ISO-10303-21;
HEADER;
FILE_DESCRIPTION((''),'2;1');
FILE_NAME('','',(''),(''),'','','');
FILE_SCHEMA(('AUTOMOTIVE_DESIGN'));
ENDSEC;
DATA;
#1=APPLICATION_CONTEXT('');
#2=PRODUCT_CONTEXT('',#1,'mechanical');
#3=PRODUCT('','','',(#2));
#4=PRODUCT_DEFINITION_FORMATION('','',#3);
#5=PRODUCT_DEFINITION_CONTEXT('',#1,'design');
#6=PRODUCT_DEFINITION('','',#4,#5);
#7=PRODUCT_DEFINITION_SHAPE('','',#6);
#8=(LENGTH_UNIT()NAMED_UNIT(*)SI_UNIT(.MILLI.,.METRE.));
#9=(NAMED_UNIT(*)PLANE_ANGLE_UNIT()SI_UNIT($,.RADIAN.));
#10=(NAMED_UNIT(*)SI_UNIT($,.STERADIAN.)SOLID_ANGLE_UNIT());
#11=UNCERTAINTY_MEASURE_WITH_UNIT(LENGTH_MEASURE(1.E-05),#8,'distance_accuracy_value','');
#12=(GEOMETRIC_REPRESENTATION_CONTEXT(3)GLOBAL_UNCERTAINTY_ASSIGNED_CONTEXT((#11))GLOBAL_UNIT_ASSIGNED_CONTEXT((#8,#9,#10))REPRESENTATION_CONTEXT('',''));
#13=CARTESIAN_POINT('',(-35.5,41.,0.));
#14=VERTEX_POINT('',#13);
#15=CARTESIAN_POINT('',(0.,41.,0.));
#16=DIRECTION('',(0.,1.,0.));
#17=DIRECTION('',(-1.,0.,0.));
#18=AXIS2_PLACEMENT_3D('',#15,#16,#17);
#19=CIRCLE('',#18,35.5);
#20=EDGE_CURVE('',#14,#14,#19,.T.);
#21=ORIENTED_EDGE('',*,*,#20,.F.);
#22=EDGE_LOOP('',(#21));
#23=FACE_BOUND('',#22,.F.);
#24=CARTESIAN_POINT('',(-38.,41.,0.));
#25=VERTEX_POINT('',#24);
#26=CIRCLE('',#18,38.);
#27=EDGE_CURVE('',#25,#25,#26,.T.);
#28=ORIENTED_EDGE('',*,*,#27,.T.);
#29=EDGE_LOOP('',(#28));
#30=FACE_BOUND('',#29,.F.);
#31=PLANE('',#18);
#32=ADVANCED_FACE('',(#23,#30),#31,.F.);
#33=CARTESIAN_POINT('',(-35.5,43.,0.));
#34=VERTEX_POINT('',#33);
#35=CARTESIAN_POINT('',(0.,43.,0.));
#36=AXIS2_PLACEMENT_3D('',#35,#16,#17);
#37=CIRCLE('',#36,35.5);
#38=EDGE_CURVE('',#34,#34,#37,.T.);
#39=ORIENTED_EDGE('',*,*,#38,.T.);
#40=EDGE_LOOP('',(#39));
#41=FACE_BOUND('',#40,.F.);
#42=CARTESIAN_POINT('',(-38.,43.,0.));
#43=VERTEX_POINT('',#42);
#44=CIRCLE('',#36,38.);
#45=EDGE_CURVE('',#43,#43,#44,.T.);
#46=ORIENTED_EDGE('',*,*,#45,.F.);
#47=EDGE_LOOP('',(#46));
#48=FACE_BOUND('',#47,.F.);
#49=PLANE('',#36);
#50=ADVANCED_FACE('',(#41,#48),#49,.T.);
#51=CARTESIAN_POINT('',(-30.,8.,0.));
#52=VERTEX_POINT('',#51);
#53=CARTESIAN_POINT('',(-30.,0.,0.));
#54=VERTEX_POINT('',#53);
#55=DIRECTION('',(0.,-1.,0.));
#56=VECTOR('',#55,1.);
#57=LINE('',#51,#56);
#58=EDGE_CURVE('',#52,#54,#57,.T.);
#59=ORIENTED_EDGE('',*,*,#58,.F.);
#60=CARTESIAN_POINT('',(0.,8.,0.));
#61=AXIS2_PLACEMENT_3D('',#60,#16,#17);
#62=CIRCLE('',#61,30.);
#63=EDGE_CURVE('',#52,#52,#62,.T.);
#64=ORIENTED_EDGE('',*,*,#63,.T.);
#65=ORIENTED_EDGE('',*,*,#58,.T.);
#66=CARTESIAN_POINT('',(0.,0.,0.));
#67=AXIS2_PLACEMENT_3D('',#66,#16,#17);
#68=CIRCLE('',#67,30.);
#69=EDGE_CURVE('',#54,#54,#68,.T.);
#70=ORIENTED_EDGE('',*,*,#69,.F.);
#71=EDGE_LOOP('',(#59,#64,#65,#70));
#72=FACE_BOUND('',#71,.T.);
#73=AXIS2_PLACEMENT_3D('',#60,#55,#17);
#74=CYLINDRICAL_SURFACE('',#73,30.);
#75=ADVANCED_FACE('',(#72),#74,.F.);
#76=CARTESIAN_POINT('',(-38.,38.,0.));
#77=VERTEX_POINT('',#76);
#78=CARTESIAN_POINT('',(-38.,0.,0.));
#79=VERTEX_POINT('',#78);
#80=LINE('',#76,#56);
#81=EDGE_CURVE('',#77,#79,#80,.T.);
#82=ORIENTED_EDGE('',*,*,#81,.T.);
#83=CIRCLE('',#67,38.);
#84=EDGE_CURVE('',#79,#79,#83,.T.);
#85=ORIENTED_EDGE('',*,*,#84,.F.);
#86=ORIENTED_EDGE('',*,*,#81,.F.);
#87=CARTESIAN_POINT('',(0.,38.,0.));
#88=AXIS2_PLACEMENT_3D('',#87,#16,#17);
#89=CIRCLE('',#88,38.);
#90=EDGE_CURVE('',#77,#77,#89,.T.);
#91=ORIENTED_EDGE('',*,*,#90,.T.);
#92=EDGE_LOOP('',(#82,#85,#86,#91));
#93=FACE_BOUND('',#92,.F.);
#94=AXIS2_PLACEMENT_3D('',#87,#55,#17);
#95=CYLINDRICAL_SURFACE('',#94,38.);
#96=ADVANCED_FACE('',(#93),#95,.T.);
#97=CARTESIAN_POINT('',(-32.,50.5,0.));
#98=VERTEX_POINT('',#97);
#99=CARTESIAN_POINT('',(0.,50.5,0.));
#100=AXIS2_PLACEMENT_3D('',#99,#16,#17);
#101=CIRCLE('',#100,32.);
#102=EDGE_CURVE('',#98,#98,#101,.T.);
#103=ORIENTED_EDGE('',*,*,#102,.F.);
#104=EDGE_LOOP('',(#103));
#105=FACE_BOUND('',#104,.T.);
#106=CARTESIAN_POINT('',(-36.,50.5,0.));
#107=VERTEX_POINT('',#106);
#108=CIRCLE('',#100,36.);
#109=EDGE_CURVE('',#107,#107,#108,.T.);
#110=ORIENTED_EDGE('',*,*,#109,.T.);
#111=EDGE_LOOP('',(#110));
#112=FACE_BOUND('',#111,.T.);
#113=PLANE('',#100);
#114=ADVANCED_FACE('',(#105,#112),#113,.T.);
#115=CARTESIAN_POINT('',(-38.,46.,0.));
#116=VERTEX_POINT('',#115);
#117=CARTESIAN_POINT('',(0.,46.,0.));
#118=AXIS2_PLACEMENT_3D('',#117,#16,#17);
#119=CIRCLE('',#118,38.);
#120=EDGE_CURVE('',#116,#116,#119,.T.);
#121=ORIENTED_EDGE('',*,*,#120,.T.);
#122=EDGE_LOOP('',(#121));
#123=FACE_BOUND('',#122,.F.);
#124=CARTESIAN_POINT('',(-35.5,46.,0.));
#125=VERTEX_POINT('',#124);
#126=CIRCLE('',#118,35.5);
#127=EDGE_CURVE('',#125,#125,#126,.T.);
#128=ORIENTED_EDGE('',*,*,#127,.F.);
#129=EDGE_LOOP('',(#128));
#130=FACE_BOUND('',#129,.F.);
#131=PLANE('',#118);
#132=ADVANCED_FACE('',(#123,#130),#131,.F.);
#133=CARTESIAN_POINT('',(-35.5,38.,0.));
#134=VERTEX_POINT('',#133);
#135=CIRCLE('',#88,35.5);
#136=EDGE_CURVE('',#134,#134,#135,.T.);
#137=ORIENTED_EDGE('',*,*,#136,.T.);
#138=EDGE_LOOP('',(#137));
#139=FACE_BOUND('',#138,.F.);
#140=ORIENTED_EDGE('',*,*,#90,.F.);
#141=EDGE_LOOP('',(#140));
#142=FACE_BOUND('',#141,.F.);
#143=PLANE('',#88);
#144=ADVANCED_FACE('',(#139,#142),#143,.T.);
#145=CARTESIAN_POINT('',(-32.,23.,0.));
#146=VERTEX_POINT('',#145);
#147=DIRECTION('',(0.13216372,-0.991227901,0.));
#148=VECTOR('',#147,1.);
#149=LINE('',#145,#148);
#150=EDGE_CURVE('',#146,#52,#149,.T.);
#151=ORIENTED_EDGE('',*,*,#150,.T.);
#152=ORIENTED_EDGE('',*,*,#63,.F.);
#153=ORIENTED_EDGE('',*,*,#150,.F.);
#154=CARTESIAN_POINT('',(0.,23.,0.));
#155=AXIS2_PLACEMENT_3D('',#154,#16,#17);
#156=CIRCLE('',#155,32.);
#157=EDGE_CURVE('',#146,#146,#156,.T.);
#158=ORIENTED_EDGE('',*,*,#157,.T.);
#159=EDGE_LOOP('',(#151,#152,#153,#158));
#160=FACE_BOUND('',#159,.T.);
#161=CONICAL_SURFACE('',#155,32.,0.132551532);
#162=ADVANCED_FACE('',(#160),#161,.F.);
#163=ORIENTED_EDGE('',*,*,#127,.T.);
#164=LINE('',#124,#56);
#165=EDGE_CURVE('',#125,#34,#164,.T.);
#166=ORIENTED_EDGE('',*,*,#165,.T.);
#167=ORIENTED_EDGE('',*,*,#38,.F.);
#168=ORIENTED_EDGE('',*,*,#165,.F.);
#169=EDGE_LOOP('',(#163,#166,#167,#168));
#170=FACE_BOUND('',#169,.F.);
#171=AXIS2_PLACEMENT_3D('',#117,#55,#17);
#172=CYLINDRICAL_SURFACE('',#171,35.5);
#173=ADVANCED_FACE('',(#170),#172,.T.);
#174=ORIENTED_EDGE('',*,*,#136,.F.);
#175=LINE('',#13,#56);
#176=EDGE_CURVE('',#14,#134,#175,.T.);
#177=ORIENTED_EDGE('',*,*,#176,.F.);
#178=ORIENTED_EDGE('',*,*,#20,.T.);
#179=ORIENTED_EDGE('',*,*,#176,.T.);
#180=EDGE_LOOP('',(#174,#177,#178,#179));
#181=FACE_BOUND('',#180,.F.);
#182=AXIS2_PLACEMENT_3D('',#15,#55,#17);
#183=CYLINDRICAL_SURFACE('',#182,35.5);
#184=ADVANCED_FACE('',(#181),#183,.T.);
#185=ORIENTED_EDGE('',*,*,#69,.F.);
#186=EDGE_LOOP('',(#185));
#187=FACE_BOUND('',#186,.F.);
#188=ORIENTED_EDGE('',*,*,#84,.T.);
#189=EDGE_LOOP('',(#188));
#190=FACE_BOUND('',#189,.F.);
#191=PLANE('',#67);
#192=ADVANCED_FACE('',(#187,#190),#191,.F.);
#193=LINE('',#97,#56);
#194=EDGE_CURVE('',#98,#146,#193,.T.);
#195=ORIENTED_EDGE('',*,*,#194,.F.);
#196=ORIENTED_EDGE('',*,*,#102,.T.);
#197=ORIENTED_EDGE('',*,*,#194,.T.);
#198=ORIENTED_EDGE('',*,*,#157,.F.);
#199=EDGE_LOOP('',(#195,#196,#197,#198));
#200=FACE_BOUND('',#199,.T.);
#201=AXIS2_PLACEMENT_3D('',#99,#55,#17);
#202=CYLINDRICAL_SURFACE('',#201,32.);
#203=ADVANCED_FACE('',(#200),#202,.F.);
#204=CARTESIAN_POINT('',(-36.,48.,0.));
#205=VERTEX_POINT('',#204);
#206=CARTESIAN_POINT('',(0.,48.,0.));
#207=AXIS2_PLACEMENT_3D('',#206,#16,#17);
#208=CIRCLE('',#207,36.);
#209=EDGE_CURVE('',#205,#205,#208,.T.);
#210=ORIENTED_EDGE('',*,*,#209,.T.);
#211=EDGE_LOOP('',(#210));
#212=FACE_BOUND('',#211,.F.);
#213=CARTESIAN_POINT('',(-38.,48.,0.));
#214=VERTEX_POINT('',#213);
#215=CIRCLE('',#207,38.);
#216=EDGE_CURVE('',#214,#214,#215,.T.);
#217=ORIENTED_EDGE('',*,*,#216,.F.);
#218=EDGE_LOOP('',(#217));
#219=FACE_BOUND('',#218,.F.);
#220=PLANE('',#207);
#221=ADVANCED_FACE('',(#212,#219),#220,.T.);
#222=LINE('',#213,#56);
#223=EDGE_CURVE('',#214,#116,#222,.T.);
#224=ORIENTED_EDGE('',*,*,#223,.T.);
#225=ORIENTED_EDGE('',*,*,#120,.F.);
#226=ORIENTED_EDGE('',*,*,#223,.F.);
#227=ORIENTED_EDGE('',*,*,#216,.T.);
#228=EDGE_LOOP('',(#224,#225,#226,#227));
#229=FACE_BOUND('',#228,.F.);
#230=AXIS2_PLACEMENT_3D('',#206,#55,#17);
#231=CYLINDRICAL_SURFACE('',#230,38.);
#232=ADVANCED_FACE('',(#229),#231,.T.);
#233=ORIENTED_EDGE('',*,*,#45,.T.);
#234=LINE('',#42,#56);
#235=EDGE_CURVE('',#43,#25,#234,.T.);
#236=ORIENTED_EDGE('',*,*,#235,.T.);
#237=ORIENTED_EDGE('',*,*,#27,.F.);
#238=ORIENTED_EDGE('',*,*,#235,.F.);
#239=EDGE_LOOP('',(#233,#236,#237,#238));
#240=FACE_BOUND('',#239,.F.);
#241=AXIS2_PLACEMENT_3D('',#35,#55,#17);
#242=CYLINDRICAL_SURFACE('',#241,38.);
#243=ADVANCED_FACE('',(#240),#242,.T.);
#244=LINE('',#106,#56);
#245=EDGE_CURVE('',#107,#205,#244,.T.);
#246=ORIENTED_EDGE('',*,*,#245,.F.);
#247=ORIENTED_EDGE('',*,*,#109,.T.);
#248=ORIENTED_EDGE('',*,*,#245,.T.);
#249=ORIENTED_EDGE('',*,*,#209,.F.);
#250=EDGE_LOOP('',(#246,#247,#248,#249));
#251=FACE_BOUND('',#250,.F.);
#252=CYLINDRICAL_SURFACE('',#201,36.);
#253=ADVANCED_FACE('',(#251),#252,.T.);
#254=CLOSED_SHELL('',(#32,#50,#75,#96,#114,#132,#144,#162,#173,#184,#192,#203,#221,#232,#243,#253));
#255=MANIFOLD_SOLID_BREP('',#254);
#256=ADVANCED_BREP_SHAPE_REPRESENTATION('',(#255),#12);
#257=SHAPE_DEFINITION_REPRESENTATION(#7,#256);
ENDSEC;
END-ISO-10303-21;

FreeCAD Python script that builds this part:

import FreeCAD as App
import Part
import Sketcher

V = App.Vector

doc = App.newDocument("Part")
body = doc.addObject("PartDesign::Body", "Body")

# Sketch on XY plane
sketch1 = body.newObject("Sketcher::SketchObject", "Sketch")
sketch1.AttachmentSupport = (doc.getObject("XY_Plane"), [""])
sketch1.MapMode = "FlatFace"
sketch1.addGeometry(Part.LineSegment(V(-38, 38, 0), V(-38, 0, 0)), False)
sketch1.addGeometry(Part.LineSegment(V(-38, 0, 0), V(-30, 0, 0)), False)
sketch1.addGeometry(Part.LineSegment(V(-30, 0, 0), V(-30, 8, 0)), False)
sketch1.addGeometry(Part.LineSegment(V(-30, 8, 0), V(-32, 23, 0)), False)
sketch1.addGeometry(Part.LineSegment(V(-32, 23, 0), V(-32, 50.5, 0)), False)
sketch1.addGeometry(Part.LineSegment(V(-32, 50.5, 0), V(-36, 50.5, 0)), False)
sketch1.addGeometry(Part.LineSegment(V(-36, 50.5, 0), V(-36, 48, 0)), False)
sketch1.addGeometry(Part.LineSegment(V(-36, 48, 0), V(-38, 48, 0)), False)
sketch1.addGeometry(Part.LineSegment(V(-38, 48, 0), V(-38, 46, 0)), False)
sketch1.addGeometry(Part.LineSegment(V(-38, 46, 0), V(-35.5, 46, 0)), False)
sketch1.addGeometry(Part.LineSegment(V(-35.5, 46, 0), V(-35.5, 43, 0)), False)
sketch1.addGeometry(Part.LineSegment(V(-35.5, 43, 0), V(-38, 43, 0)), False)
sketch1.addGeometry(Part.LineSegment(V(-38, 43, 0), V(-38, 41, 0)), False)
sketch1.addGeometry(Part.LineSegment(V(-38, 41, 0), V(-35.5, 41, 0)), False)
sketch1.addGeometry(Part.LineSegment(V(-35.5, 41, 0), V(-35.5, 38, 0)), False)
sketch1.addGeometry(Part.LineSegment(V(-35.5, 38, 0), V(-38, 38, 0)), False)
sketch1.addConstraint(Sketcher.Constraint("Coincident", 0, 2, 1, 1))
sketch1.addConstraint(Sketcher.Constraint("Coincident", 1, 2, 2, 1))
sketch1.addConstraint(Sketcher.Constraint("Coincident", 2, 2, 3, 1))
sketch1.addConstraint(Sketcher.Constraint("Coincident", 3, 2, 4, 1))
sketch1.addConstraint(Sketcher.Constraint("Coincident", 4, 2, 5, 1))
sketch1.addConstraint(Sketcher.Constraint("Coincident", 5, 2, 6, 1))
sketch1.addConstraint(Sketcher.Constraint("Coincident", 6, 2, 7, 1))
sketch1.addConstraint(Sketcher.Constraint("Coincident", 7, 2, 8, 1))
sketch1.addConstraint(Sketcher.Constraint("Coincident", 8, 2, 9, 1))
sketch1.addConstraint(Sketcher.Constraint("Coincident", 9, 2, 10, 1))
sketch1.addConstraint(Sketcher.Constraint("Coincident", 10, 2, 11, 1))
sketch1.addConstraint(Sketcher.Constraint("Coincident", 11, 2, 12, 1))
sketch1.addConstraint(Sketcher.Constraint("Coincident", 12, 2, 13, 1))
sketch1.addConstraint(Sketcher.Constraint("Coincident", 13, 2, 14, 1))
sketch1.addConstraint(Sketcher.Constraint("Coincident", 14, 2, 15, 1))
sketch1.addConstraint(Sketcher.Constraint("Coincident", 15, 2, 0, 1))
sketch1.addConstraint(Sketcher.Constraint("Vertical", 0))
sketch1.addConstraint(Sketcher.Constraint("Horizontal", 1))
sketch1.addConstraint(Sketcher.Constraint("Vertical", 2))
sketch1.addConstraint(Sketcher.Constraint("Vertical", 4))
sketch1.addConstraint(Sketcher.Constraint("Horizontal", 5))
sketch1.addConstraint(Sketcher.Constraint("Vertical", 6))
sketch1.addConstraint(Sketcher.Constraint("Horizontal", 7))
sketch1.addConstraint(Sketcher.Constraint("Vertical", 8))
sketch1.addConstraint(Sketcher.Constraint("Horizontal", 9))
sketch1.addConstraint(Sketcher.Constraint("Vertical", 10))
sketch1.addConstraint(Sketcher.Constraint("Horizontal", 11))
sketch1.addConstraint(Sketcher.Constraint("Vertical", 12))
sketch1.addConstraint(Sketcher.Constraint("Horizontal", 13))
sketch1.addConstraint(Sketcher.Constraint("Vertical", 14))
sketch1.addConstraint(Sketcher.Constraint("Horizontal", 15))
sketch1.addConstraint(Sketcher.Constraint("PointOnObject", 0, 2, -1))
sketch1.addConstraint(Sketcher.Constraint("Vertical", 0, 2, 7, 2))
sketch1.addConstraint(Sketcher.Constraint("Vertical", 8, 2, 11, 2))
sketch1.addConstraint(Sketcher.Constraint("Vertical", 10, 2, 13, 2))
sketch1.addConstraint(Sketcher.Constraint("Equal", 1, 2))
sketch1.addConstraint(Sketcher.Constraint("Equal", 15, 6))
sketch1.addConstraint(Sketcher.Constraint("Equal", 7, 8))
sketch1.addConstraint(Sketcher.Constraint("Equal", 8, 12))
sketch1.addConstraint(Sketcher.Constraint("Equal", 10, 14))
sketch1.addConstraint(Sketcher.Constraint("DistanceX", 1, 1, 1, 2, 8.0))
sketch1.addConstraint(Sketcher.Constraint("DistanceX", 5, 2, 5, 1, 4.0))
sketch1.addConstraint(Sketcher.Constraint("DistanceX", 7, 2, 7, 1, 2.0))
sketch1.addConstraint(Sketcher.Constraint("DistanceY", 0, 2, 0, 1, 38.0))
sketch1.addConstraint(Sketcher.Constraint("DistanceY", 10, 2, 10, 1, 3.0))
sketch1.addConstraint(Sketcher.Constraint("DistanceX", 9, 1, 9, 2, 2.5))
sketch1.addConstraint(Sketcher.Constraint("DistanceX", 0, 2, -1, 1, 38.0))
sketch1.addConstraint(Sketcher.Constraint("DistanceY", 2, 2, 3, 2, 15.0))
revolution = body.newObject("PartDesign::Revolution", "Revolution")
revolution.Profile = sketch1
revolution.ReferenceAxis = (sketch1, ["V_Axis"])
revolution.Angle = 360

doc.recompute()
